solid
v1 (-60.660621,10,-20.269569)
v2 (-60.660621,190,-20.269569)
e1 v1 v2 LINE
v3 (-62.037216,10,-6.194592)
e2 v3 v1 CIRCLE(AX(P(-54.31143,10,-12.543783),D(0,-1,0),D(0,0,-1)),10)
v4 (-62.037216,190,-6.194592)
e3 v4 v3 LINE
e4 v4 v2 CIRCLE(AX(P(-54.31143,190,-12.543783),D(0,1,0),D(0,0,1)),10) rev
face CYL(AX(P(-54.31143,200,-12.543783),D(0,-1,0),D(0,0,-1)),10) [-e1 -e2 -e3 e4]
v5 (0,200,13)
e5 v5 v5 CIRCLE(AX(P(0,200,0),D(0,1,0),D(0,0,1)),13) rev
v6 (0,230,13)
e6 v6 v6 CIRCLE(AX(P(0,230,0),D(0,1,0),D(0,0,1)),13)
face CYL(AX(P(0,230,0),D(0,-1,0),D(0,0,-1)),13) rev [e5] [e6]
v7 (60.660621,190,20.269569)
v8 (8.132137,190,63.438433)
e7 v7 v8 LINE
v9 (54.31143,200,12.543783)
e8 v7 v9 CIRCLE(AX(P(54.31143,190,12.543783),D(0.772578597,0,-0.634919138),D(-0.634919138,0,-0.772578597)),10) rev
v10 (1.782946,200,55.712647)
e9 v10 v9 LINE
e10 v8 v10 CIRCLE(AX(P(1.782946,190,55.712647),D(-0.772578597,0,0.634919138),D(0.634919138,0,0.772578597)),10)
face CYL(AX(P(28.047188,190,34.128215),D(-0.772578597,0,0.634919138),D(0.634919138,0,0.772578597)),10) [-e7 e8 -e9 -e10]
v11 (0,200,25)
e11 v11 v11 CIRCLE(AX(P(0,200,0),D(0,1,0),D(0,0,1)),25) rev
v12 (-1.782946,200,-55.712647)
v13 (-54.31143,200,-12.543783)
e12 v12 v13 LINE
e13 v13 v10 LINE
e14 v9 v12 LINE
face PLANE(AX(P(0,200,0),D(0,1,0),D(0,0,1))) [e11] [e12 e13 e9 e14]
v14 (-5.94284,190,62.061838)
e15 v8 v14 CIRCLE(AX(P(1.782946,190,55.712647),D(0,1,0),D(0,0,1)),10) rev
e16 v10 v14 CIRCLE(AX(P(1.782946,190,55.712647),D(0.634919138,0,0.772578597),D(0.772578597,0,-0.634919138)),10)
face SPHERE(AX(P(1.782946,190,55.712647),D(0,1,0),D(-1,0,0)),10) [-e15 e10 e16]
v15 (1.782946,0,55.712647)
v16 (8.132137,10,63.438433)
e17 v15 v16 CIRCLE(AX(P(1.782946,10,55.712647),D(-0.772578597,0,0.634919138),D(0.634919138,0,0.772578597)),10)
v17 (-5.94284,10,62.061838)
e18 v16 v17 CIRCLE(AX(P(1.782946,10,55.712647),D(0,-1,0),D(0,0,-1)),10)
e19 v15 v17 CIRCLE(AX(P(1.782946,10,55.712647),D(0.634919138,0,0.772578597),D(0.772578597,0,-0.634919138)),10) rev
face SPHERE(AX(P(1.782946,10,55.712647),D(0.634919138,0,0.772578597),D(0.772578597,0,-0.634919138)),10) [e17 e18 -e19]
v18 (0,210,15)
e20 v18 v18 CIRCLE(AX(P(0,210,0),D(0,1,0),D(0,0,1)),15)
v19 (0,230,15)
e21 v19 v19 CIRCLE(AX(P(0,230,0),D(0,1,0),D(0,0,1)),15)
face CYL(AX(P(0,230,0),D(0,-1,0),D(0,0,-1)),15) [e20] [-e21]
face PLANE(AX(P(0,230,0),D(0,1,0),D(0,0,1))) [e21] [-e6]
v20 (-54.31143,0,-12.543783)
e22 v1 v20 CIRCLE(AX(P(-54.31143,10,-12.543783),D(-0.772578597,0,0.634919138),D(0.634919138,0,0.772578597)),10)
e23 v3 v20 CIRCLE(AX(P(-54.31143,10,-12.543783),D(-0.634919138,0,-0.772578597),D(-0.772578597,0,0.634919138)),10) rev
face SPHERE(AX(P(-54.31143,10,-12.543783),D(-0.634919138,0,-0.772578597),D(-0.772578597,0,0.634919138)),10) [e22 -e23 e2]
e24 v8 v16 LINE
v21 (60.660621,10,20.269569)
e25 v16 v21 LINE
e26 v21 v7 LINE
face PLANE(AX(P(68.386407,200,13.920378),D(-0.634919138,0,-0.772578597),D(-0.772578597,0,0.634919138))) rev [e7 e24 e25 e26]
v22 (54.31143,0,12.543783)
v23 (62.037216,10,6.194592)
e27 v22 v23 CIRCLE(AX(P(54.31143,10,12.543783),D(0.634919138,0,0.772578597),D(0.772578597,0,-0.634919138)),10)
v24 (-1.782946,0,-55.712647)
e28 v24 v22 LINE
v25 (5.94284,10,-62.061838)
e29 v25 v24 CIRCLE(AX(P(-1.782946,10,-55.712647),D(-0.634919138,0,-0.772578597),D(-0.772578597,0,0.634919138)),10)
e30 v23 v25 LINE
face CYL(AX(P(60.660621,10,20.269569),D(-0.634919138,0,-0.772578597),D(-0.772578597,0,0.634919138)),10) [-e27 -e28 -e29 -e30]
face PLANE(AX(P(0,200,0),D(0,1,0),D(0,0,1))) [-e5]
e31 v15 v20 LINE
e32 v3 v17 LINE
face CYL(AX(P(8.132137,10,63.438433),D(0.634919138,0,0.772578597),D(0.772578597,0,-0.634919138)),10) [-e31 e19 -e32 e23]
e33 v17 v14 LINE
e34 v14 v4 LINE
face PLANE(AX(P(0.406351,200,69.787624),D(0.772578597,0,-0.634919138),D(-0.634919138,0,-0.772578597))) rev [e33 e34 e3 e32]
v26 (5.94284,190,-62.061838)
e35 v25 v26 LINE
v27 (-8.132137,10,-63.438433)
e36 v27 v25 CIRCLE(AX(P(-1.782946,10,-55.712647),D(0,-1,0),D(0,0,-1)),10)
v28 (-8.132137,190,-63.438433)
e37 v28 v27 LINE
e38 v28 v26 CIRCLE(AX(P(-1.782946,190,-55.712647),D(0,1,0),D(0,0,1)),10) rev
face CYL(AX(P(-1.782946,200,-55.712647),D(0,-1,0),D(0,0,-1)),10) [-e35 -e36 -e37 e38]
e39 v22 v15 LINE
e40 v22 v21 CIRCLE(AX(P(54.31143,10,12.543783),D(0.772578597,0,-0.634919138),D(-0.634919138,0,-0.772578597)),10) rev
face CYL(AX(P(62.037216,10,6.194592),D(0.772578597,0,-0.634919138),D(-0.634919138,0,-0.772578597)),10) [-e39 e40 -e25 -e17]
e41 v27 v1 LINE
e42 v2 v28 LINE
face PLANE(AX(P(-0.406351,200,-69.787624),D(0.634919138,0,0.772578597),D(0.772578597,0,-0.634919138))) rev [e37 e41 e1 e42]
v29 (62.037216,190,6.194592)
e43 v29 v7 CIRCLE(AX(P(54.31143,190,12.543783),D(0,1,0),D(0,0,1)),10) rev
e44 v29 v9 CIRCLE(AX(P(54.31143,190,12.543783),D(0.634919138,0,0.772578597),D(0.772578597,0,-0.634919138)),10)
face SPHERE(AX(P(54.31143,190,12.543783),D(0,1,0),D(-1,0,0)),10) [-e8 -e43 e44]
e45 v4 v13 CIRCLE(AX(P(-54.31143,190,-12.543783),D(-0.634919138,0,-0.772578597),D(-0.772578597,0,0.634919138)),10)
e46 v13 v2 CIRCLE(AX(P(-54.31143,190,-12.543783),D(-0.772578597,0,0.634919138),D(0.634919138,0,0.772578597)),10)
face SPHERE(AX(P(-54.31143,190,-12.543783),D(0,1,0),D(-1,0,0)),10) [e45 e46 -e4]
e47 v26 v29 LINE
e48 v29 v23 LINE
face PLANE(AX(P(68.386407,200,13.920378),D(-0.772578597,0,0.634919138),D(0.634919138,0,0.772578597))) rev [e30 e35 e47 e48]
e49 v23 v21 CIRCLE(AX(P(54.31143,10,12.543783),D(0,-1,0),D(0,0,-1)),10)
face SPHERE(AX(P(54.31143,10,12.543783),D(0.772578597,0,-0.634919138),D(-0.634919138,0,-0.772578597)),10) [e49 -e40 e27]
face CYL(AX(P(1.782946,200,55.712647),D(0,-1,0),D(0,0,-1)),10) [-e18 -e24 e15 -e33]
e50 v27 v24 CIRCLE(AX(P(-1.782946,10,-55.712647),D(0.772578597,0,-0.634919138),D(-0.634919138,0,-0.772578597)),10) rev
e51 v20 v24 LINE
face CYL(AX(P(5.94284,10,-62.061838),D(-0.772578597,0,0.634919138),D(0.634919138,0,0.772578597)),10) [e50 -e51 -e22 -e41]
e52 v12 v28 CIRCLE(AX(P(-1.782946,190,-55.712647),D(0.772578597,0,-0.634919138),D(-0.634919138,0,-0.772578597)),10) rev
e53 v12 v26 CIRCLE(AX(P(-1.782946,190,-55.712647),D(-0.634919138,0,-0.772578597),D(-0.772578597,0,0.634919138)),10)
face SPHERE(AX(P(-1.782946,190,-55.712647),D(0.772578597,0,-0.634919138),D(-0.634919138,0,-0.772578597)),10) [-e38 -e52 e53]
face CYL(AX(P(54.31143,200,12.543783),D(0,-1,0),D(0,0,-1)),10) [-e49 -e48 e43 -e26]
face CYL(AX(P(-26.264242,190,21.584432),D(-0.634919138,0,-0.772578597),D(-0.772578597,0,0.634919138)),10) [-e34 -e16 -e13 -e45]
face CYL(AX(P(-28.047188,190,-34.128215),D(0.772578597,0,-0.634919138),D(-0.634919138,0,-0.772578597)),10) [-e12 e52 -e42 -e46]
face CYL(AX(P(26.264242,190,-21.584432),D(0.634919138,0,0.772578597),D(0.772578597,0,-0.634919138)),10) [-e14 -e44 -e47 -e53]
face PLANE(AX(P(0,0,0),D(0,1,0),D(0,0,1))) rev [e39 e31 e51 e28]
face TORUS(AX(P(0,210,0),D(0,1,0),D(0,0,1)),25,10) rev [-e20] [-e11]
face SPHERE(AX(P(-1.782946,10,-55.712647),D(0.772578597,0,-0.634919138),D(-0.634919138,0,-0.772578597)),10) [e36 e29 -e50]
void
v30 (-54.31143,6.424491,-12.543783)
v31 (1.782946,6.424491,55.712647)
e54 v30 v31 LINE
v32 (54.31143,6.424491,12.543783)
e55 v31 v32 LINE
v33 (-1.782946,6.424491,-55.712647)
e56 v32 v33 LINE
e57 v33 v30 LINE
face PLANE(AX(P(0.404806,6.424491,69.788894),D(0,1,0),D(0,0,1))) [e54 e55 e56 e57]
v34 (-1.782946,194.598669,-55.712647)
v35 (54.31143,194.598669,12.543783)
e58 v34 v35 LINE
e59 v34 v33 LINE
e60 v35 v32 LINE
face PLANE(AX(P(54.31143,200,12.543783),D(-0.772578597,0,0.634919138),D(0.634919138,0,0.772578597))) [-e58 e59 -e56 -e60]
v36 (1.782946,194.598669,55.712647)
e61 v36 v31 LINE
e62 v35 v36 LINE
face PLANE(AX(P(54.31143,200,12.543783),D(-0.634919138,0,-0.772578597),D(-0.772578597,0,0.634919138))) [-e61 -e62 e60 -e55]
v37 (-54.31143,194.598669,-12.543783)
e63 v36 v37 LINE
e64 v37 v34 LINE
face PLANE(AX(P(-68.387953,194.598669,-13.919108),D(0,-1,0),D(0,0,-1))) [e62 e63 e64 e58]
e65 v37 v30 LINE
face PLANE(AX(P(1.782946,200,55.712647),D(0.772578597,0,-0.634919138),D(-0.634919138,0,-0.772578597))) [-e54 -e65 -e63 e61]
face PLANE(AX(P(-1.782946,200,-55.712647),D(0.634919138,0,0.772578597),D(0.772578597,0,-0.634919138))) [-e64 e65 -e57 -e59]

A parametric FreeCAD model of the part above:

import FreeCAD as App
import Part
import Sketcher
from FreeCAD import Vector


def edges_at(feature, points):
    """Names of the edges that pass closest to the given points."""
    edges = feature.Shape.Edges
    near = lambda p: min(range(len(edges)), key=lambda i: edges[i].distToShape(Part.Vertex(*p))[0])
    return sorted({f"Edge{near(p) + 1}" for p in points})


def add_polygon(sketch, points):
    """Adds a closed chain of lines whose ends are joined by coincident constraints."""
    first, n = sketch.GeometryCount, len(points)
    for a, b in zip(points, points[1:] + points[:1]):
        sketch.addGeometry(Part.LineSegment(App.Vector(*a, 0), App.Vector(*b, 0)), False)
    for i in range(n):
        sketch.addConstraint(Sketcher.Constraint("Coincident", first + i, 2, first + (i + 1) % n, 1))

doc = App.newDocument("Part")
params = doc.addObject("Spreadsheet::Sheet", "Params")
for row, (alias, value) in enumerate([
    ("pad1_length", "200 mm"),
    ("pad2_length", "200 mm"),
    ("pad3_length", "200 mm"),
    ("pad4_length", "77.991121 mm"),
    ("pad5_length", "77.991121 mm"),
    ("sketch6_diameter", "30 mm"),
    ("sketch6_diameter2", "26 mm"),
    ("pad6_length", "30 mm"),
    ("fillet_radius", "10 mm"),
    ("fillet2_radius", "10 mm"),
], start=1):
    params.set(f"A{row}", alias)
    params.set(f"B{row}", "=" + value)
    params.setAlias(f"B{row}", alias)

body = doc.addObject("PartDesign::Body", "Body")

# Sketch on XZ plane
sketch1 = body.newObject("Sketcher::SketchObject", "Sketch")
sketch1.AttachmentSupport = (doc.getObject("XZ_Plane"), [""])
sketch1.MapMode = "FlatFace"
add_polygon(sketch1, [(0, -70), (-68, -14), (0, 70), (68, 14)])  # lines 0-3
add_polygon(sketch1, [(-2, -56), (54, 13), (2, 56), (-54, -13)])  # lines 4-7
sketch1.addConstraint([
    Sketcher.Constraint("Symmetric", 0, 2, 2, 2, -1, 1),
    Sketcher.Constraint("Symmetric", 1, 2, 3, 2, -1, 1),
    Sketcher.Constraint("Symmetric", 4, 2, 6, 2, -1, 1),
    Sketcher.Constraint("Symmetric", 5, 2, 7, 2, -1, 1),
    Sketcher.Constraint("Perpendicular", 0, 1),
    Sketcher.Constraint("Parallel", 3, 4),
    Sketcher.Constraint("Perpendicular", 4, 5),
    Sketcher.Constraint("DistanceX", 3, 2, 1, 2, 0.812702),
    Sketcher.Constraint("Distance", 0, 87.991121),
    Sketcher.Constraint("Distance", 1, 108.34885),
    Sketcher.Constraint("Distance", 4, 88.34885),
    Sketcher.Constraint("Distance", 5, 67.991121),
])
pad1 = body.newObject("PartDesign::Pad", "Pad")
pad1.Profile = sketch1
pad1.setExpression("Length", "Params.pad1_length")
pad1.Reversed = True

# Sketch on XZ plane
sketch2 = body.newObject("Sketcher::SketchObject", "Sketch001")
sketch2.AttachmentSupport = (doc.getObject("XZ_Plane"), [""])
sketch2.MapMode = "FlatFace"
add_polygon(sketch2, [(0, -70), (-68, -14), (0, 70), (68, 14)])  # lines 0-3
add_polygon(sketch2, [(-2, -56), (54, 13), (2, 56), (-54, -13)])  # lines 4-7
sketch2.addConstraint([
    Sketcher.Constraint("Symmetric", 0, 2, 2, 2, -1, 1),
    Sketcher.Constraint("Symmetric", 1, 2, 3, 2, -1, 1),
    Sketcher.Constraint("Symmetric", 4, 2, 6, 2, -1, 1),
    Sketcher.Constraint("Symmetric", 5, 2, 7, 2, -1, 1),
    Sketcher.Constraint("Perpendicular", 0, 1),
    Sketcher.Constraint("Parallel", 3, 4),
    Sketcher.Constraint("Perpendicular", 4, 5),
    Sketcher.Constraint("DistanceX", 3, 2, 1, 2, 0.812702),
    Sketcher.Constraint("Distance", 0, 87.991121),
    Sketcher.Constraint("Distance", 1, 108.34885),
    Sketcher.Constraint("Distance", 4, 88.34885),
    Sketcher.Constraint("Distance", 5, 67.991121),
])
pad2 = body.newObject("PartDesign::Pad", "Pad001")
pad2.Profile = sketch2
pad2.setExpression("Length", "Params.pad2_length")
pad2.Reversed = True

# Sketch on XZ plane
sketch3 = body.newObject("Sketcher::SketchObject", "Sketch002")
sketch3.AttachmentSupport = (doc.getObject("XZ_Plane"), [""])
sketch3.MapMode = "FlatFace"
add_polygon(sketch3, [(0, -70), (-68, -14), (0, 70), (68, 14)])  # lines 0-3
add_polygon(sketch3, [(-2, -56), (54, 13), (2, 56), (-54, -13)])  # lines 4-7
sketch3.addConstraint([
    Sketcher.Constraint("Symmetric", 0, 2, 2, 2, -1, 1),
    Sketcher.Constraint("Symmetric", 1, 2, 3, 2, -1, 1),
    Sketcher.Constraint("Symmetric", 4, 2, 6, 2, -1, 1),
    Sketcher.Constraint("Symmetric", 5, 2, 7, 2, -1, 1),
    Sketcher.Constraint("Perpendicular", 0, 1),
    Sketcher.Constraint("Parallel", 3, 4),
    Sketcher.Constraint("Perpendicular", 4, 5),
    Sketcher.Constraint("DistanceX", 3, 2, 1, 2, 0.812702),
    Sketcher.Constraint("Distance", 0, 87.991121),
    Sketcher.Constraint("Distance", 1, 108.34885),
    Sketcher.Constraint("Distance", 4, 88.34885),
    Sketcher.Constraint("Distance", 5, 67.991121),
])
pad3 = body.newObject("PartDesign::Pad", "Pad002")
pad3.Profile = sketch3
pad3.setExpression("Length", "Params.pad3_length")
pad3.Reversed = True

# Sketch on an angled plane
sketch4 = body.newObject("Sketcher::SketchObject", "Sketch003")
sketch4.Placement = App.Placement(Vector(33.990028, 0, -27.933623), App.Rotation(Vector(-0.634919138, 0, -0.772578597), Vector(0, 1, 0), Vector(0.772578597, 0, -0.634919138), "ZXY"))
add_polygon(sketch4, [(-54, 6), (-54, 0), (54, 0), (54, 6)])  # lines 0-3
sketch4.addConstraint([
    Sketcher.Constraint("Vertical", 0),
    Sketcher.Constraint("Horizontal", 1),
    Sketcher.Constraint("Vertical", 2),
    Sketcher.Constraint("Horizontal", 3),
    Sketcher.Constraint("Symmetric", 0, 2, 1, 2, -1, 1),
    Sketcher.Constraint("DistanceX", 1, 1, 1, 2, 108.34885),
    Sketcher.Constraint("DistanceY", 0, 2, 0, 1, 6.424491),
])
pad4 = body.newObject("PartDesign::Pad", "Pad003")
pad4.Profile = sketch4
pad4.setExpression("Length", "Params.pad4_length")
pad4.Reversed = True

# Sketch on an angled plane
sketch5 = body.newObject("Sketcher::SketchObject", "Sketch004")
sketch5.Placement = App.Placement(Vector(33.990028, 0, -27.933623), App.Rotation(Vector(-0.634919138, 0, -0.772578597), Vector(0, 1, 0), Vector(0.772578597, 0, -0.634919138), "ZXY"))
add_polygon(sketch5, [(-54, 200), (-54, 195), (54, 195), (54, 200)])  # lines 0-3
sketch5.addConstraint([
    Sketcher.Constraint("Vertical", 0),
    Sketcher.Constraint("Horizontal", 1),
    Sketcher.Constraint("Vertical", 2),
    Sketcher.Constraint("Horizontal", 3),
    Sketcher.Constraint("DistanceY", -1, 1, 2, 2, 200.0),
    Sketcher.Constraint("DistanceX", 1, 1, 1, 2, 108.34885),
    Sketcher.Constraint("DistanceY", 0, 2, 0, 1, 5.401331),
    Sketcher.Constraint("DistanceX", 0, 2, -1, 1, 54.174425),
])
pad5 = body.newObject("PartDesign::Pad", "Pad004")
pad5.Profile = sketch5
pad5.setExpression("Length", "Params.pad5_length")
pad5.Reversed = True

# Sketch on XZ plane
sketch6 = body.newObject("Sketcher::SketchObject", "Sketch005")
sketch6.AttachmentSupport = (doc.getObject("XZ_Plane"), [""])
sketch6.MapMode = "FlatFace"
sketch6.AttachmentOffset = App.Placement(Vector(0, 0, -200), App.Rotation())
sketch6.addGeometry([
    Part.Circle(Vector(0, 0, 0), Vector(0, 0, 1), 15),
    Part.Circle(Vector(0, 0, 0), Vector(0, 0, 1), 13),
], False)
sketch6.addConstraint([
    Sketcher.Constraint("Coincident", 0, 3, -1, 1),
    Sketcher.Constraint("Coincident", 1, 3, -1, 1),
    Sketcher.Constraint("Diameter", 0, 30.0),
    Sketcher.Constraint("Diameter", 1, 26.0),
])
sketch6.setExpression("Constraints[2]", "Params.sketch6_diameter")
sketch6.setExpression("Constraints[3]", "Params.sketch6_diameter2")
pad6 = body.newObject("PartDesign::Pad", "Pad005")
pad6.Profile = sketch6
pad6.setExpression("Length", "Params.pad6_length")
pad6.Reversed = True
doc.recompute()

fillet = body.newObject("PartDesign::Fillet", "Fillet")
fillet.Base = (pad6, edges_at(pad6, [(0, 200, -15)]))
fillet.setExpression("Radius", "Params.fillet_radius")
doc.recompute()

fillet2 = body.newObject("PartDesign::Fillet", "Fillet001")
fillet2.Base = (fillet, edges_at(fillet, [
    (-33.99, 200, 27.934),
    (34.396, 200, 41.854),
    (33.99, 200, -27.934),
    (34.396, 0, 41.854),
    (-33.99, 0, 27.934),
    (-34.396, 0, -41.854),
    (33.99, 0, -27.934),
    (68.386, 100, 13.92),
    (0.406, 100, 69.788),
    (-68.386, 100, -13.92),
    (-0.406, 100, -69.788),
    (-34.396, 200, -41.854),
]))
fillet2.setExpression("Radius", "Params.fillet2_radius")

doc.recompute()
